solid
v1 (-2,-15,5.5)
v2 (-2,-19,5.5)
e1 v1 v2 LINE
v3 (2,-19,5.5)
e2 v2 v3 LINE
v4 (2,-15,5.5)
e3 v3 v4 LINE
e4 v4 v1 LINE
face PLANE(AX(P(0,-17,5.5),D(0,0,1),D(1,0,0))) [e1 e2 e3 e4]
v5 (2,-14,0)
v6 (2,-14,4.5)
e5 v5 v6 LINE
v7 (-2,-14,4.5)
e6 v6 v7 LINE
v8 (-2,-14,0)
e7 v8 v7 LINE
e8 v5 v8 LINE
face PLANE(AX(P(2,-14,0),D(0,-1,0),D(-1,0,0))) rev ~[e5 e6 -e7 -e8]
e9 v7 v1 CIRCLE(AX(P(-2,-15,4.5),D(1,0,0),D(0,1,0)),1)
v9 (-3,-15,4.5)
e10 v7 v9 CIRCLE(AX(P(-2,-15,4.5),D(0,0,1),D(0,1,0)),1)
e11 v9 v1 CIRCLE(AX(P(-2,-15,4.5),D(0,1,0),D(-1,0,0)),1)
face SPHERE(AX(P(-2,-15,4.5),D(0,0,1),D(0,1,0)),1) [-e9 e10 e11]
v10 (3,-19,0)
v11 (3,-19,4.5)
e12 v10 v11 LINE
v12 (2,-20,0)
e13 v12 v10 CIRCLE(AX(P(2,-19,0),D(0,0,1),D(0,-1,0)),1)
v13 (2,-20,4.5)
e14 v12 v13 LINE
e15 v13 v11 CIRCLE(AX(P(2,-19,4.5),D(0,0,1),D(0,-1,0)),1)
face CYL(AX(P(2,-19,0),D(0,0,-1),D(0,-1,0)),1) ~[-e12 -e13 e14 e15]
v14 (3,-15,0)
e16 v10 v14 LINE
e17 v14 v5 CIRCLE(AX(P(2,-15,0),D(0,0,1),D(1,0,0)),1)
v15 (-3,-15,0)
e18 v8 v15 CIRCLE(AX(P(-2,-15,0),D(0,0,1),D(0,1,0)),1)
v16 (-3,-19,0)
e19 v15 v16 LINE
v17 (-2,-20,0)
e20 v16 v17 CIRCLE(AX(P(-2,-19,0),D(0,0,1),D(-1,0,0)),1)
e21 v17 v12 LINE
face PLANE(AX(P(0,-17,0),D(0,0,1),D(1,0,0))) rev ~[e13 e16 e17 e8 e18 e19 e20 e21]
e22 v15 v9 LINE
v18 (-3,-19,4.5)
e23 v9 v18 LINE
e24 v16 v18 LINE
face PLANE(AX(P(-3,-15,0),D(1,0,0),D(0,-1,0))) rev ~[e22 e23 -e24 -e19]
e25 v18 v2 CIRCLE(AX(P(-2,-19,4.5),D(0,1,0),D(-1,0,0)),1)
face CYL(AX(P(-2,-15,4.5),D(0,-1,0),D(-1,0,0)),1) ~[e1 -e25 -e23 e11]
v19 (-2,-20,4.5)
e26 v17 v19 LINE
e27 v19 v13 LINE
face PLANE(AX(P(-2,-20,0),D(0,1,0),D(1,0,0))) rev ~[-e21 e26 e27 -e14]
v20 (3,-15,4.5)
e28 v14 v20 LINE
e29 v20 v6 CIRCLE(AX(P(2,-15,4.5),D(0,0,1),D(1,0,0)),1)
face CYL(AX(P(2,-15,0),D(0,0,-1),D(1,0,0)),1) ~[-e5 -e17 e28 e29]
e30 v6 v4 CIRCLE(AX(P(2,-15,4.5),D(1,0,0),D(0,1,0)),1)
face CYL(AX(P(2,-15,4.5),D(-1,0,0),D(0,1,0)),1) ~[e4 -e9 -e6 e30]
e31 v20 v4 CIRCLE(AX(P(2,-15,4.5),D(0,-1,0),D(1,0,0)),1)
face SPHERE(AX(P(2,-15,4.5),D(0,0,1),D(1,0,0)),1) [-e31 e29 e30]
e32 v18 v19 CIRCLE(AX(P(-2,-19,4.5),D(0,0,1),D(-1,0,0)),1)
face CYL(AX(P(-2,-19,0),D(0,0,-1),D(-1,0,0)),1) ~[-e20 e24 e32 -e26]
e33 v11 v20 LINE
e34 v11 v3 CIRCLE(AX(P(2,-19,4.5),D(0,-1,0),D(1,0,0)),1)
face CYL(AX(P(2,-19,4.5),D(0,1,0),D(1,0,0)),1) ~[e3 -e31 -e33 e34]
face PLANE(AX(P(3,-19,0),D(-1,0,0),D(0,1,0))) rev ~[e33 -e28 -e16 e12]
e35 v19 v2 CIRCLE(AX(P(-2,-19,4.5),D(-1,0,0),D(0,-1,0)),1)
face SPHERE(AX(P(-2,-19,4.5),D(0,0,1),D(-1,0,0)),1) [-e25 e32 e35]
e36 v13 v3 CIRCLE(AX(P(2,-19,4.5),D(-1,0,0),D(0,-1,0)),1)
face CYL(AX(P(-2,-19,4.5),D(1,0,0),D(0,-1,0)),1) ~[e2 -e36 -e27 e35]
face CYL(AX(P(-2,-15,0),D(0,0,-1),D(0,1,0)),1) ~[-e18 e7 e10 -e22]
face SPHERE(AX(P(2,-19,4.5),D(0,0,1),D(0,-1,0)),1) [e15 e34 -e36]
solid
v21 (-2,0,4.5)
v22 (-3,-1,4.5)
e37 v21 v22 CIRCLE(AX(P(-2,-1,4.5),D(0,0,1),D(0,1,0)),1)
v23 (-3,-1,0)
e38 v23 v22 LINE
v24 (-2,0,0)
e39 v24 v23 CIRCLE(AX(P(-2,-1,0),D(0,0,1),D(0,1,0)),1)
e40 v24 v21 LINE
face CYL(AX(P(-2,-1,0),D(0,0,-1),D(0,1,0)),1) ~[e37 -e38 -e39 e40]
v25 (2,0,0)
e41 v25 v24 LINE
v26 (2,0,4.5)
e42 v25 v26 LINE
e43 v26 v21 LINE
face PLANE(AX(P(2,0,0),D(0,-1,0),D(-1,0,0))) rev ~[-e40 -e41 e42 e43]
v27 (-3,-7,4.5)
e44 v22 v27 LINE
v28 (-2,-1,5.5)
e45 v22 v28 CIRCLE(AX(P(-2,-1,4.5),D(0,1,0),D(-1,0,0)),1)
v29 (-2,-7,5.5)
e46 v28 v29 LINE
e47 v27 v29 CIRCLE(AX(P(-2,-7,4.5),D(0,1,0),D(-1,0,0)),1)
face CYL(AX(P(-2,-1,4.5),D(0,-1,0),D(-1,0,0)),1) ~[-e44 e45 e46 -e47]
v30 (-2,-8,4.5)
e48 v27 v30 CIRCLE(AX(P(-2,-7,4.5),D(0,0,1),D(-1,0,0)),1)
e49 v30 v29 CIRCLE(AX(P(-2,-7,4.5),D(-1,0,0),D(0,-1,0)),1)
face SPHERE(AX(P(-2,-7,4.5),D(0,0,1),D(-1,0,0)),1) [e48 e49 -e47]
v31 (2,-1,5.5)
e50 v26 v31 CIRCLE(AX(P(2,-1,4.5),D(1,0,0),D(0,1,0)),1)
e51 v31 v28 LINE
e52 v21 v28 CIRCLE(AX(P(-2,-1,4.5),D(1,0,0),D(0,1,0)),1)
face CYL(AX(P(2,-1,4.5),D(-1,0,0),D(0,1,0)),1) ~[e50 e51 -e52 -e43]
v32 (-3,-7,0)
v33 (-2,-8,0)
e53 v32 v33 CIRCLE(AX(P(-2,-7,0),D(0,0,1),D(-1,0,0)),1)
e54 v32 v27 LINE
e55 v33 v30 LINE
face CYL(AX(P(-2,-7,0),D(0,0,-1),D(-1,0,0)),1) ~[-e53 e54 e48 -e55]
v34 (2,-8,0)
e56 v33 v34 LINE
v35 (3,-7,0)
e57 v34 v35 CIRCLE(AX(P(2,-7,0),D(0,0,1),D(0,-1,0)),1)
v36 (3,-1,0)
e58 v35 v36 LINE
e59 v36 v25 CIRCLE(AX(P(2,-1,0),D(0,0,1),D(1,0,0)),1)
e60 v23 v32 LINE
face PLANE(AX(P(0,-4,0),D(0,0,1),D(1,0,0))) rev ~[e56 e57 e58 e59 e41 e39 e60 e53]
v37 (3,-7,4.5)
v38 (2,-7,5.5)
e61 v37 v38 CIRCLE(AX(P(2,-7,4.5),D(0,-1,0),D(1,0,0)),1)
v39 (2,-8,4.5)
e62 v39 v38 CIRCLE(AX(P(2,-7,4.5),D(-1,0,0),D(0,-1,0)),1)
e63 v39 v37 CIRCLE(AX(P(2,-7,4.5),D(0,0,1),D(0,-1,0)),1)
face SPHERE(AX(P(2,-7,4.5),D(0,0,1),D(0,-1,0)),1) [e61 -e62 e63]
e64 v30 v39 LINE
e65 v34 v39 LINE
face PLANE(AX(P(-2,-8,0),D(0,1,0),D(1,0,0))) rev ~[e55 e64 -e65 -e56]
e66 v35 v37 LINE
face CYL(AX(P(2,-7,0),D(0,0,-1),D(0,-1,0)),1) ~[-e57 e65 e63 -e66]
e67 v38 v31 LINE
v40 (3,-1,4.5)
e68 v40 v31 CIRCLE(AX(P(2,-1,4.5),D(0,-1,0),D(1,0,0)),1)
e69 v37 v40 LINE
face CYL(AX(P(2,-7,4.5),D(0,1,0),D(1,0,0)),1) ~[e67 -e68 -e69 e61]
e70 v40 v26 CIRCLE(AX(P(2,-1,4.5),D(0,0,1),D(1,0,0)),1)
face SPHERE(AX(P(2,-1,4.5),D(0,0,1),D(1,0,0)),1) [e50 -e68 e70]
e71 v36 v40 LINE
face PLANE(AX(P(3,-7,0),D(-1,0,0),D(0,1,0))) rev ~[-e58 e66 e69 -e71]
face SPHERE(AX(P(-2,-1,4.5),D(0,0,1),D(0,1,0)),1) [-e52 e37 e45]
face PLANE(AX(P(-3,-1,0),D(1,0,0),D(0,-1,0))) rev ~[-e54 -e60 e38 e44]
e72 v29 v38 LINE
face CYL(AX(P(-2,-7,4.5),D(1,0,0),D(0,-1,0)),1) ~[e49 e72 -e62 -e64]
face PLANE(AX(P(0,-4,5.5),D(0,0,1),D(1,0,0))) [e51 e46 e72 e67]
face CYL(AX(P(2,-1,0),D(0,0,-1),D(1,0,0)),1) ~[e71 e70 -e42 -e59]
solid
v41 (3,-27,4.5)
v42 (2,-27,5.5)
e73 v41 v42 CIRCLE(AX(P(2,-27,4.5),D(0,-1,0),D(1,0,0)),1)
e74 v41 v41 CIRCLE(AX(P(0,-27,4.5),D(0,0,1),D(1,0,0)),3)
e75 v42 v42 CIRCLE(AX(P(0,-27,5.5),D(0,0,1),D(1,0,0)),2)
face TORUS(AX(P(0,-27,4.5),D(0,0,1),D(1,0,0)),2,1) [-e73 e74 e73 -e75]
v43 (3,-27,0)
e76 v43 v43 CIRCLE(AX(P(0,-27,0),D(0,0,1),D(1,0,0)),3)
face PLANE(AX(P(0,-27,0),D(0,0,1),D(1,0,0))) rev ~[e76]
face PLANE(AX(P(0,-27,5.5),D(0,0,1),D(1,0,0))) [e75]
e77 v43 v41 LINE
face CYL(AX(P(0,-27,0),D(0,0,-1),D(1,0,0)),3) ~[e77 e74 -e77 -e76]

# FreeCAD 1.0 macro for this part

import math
import FreeCAD as App
import Part
import Sketcher

V = App.Vector
Q = App.Units.Quantity


def edges_at(feature, points):
    """Names of the edges that pass closest to the given points."""
    edges = feature.Shape.Edges
    near = lambda p: min(range(len(edges)), key=lambda i: edges[i].distToShape(Part.Vertex(*p))[0])
    return sorted({f"Edge{near(p) + 1}" for p in points})

doc = App.newDocument("Part")
body = doc.addObject("PartDesign::Body", "Body")

sketch1 = body.newObject("Sketcher::SketchObject", "Sketch")
sketch1.AttachmentSupport = (doc.getObject("XY_Plane"), [""])
sketch1.MapMode = "FlatFace"
sketch1.addGeometry(Part.LineSegment(V(2, 0, 0), V(-2, 0, 0)), False)
sketch1.addGeometry(Part.ArcOfCircle(Part.Circle(V(-2, -1, 0), V(0, 0, 1), 1), math.radians(90), math.radians(180)), False)
sketch1.addGeometry(Part.LineSegment(V(-3, -1, 0), V(-3, -7, 0)), False)
sketch1.addGeometry(Part.ArcOfCircle(Part.Circle(V(-2, -7, 0), V(0, 0, 1), 1), math.radians(180), math.radians(270)), False)
sketch1.addGeometry(Part.LineSegment(V(-2, -8, 0), V(2, -8, 0)), False)
sketch1.addGeometry(Part.ArcOfCircle(Part.Circle(V(2, -7, 0), V(0, 0, 1), 1), math.radians(-90), math.radians(0)), False)
sketch1.addGeometry(Part.LineSegment(V(3, -7, 0), V(3, -1, 0)), False)
sketch1.addGeometry(Part.ArcOfCircle(Part.Circle(V(2, -1, 0), V(0, 0, 1), 1), math.radians(0), math.radians(90)), False)
sketch1.addConstraint(Sketcher.Constraint("Tangent", 0, 2, 1, 1))
sketch1.addConstraint(Sketcher.Constraint("Tangent", 1, 2, 2, 1))
sketch1.addConstraint(Sketcher.Constraint("Tangent", 2, 2, 3, 1))
sketch1.addConstraint(Sketcher.Constraint("Tangent", 3, 2, 4, 1))
sketch1.addConstraint(Sketcher.Constraint("Tangent", 4, 2, 5, 1))
sketch1.addConstraint(Sketcher.Constraint("Tangent", 5, 2, 6, 1))
sketch1.addConstraint(Sketcher.Constraint("Tangent", 6, 2, 7, 1))
sketch1.addConstraint(Sketcher.Constraint("Tangent", 7, 2, 0, 1))
sketch1.addConstraint(Sketcher.Constraint("Horizontal", 0))
sketch1.addConstraint(Sketcher.Constraint("Vertical", 2))
sketch1.addConstraint(Sketcher.Constraint("Horizontal", 4))
sketch1.addConstraint(Sketcher.Constraint("Vertical", 6))
sketch1.addConstraint(Sketcher.Constraint("Equal", 1, 3))
sketch1.addConstraint(Sketcher.Constraint("Equal", 3, 5))
sketch1.addConstraint(Sketcher.Constraint("Equal", 5, 7))
sketch1.addConstraint(Sketcher.Constraint("Symmetric", 0, 2, 7, 2, -1, 1))
sketch1.addConstraint(Sketcher.Constraint("Radius", 1, Q("1 mm")))
sketch1.addConstraint(Sketcher.Constraint("DistanceX", 0, 2, 0, 1, Q("4 mm")))
sketch1.addConstraint(Sketcher.Constraint("DistanceY", 2, 2, 2, 1, Q("6 mm")))
pad1 = body.newObject("PartDesign::Pad", "Pad")
pad1.Profile = sketch1
pad1.Length = 5.5
doc.recompute()

fillet = body.newObject("PartDesign::Fillet", "Fillet")
fillet.Base = (pad1, edges_at(pad1, [
    (0, 0, 5.5),
    (-2.707, -0.293, 5.5),
    (-3, -4, 5.5),
    (-2.707, -7.707, 5.5),
    (0, -8, 5.5),
    (2.707, -7.707, 5.5),
    (3, -4, 5.5),
    (2.707, -0.293, 5.5),
]))
fillet.Radius = 1
body2 = doc.addObject("PartDesign::Body", "Body001")

sketch2 = body2.newObject("Sketcher::SketchObject", "Sketch001")
sketch2.AttachmentSupport = (doc.getObject("XY_Plane001"), [""])
sketch2.MapMode = "FlatFace"
sketch2.addGeometry(Part.LineSegment(V(2, -14, 0), V(-2, -14, 0)), False)
sketch2.addGeometry(Part.ArcOfCircle(Part.Circle(V(-2, -15, 0), V(0, 0, 1), 1), math.radians(90), math.radians(180)), False)
sketch2.addGeometry(Part.LineSegment(V(-3, -15, 0), V(-3, -19, 0)), False)
sketch2.addGeometry(Part.ArcOfCircle(Part.Circle(V(-2, -19, 0), V(0, 0, 1), 1), math.radians(180), math.radians(270)), False)
sketch2.addGeometry(Part.LineSegment(V(-2, -20, 0), V(2, -20, 0)), False)
sketch2.addGeometry(Part.ArcOfCircle(Part.Circle(V(2, -19, 0), V(0, 0, 1), 1), math.radians(-90), math.radians(0)), False)
sketch2.addGeometry(Part.LineSegment(V(3, -19, 0), V(3, -15, 0)), False)
sketch2.addGeometry(Part.ArcOfCircle(Part.Circle(V(2, -15, 0), V(0, 0, 1), 1), math.radians(0), math.radians(90)), False)
sketch2.addConstraint(Sketcher.Constraint("Tangent", 0, 2, 1, 1))
sketch2.addConstraint(Sketcher.Constraint("Tangent", 1, 2, 2, 1))
sketch2.addConstraint(Sketcher.Constraint("Tangent", 2, 2, 3, 1))
sketch2.addConstraint(Sketcher.Constraint("Tangent", 3, 2, 4, 1))
sketch2.addConstraint(Sketcher.Constraint("Tangent", 4, 2, 5, 1))
sketch2.addConstraint(Sketcher.Constraint("Tangent", 5, 2, 6, 1))
sketch2.addConstraint(Sketcher.Constraint("Tangent", 6, 2, 7, 1))
sketch2.addConstraint(Sketcher.Constraint("Tangent", 7, 2, 0, 1))
sketch2.addConstraint(Sketcher.Constraint("Horizontal", 0))
sketch2.addConstraint(Sketcher.Constraint("Vertical", 2))
sketch2.addConstraint(Sketcher.Constraint("Horizontal", 4))
sketch2.addConstraint(Sketcher.Constraint("Vertical", 6))
sketch2.addConstraint(Sketcher.Constraint("Equal", 1, 3))
sketch2.addConstraint(Sketcher.Constraint("Equal", 3, 5))
sketch2.addConstraint(Sketcher.Constraint("Equal", 5, 7))
sketch2.addConstraint(Sketcher.Constraint("Equal", 4, 2))
sketch2.addConstraint(Sketcher.Constraint("Radius", 1, Q("1 mm")))
sketch2.addConstraint(Sketcher.Constraint("DistanceX", 0, 2, 0, 1, Q("4 mm")))
sketch2.addConstraint(Sketcher.Constraint("DistanceX", 1, 3, -1, 1, Q("2 mm")))
sketch2.addConstraint(Sketcher.Constraint("DistanceY", 1, 3, -1, 1, Q("15 mm")))
pad2 = body2.newObject("PartDesign::Pad", "Pad001")
pad2.Profile = sketch2
pad2.Length = 5.5
doc.recompute()

fillet2 = body2.newObject("PartDesign::Fillet", "Fillet001")
fillet2.Base = (pad2, edges_at(pad2, [
    (3, -17, 5.5),
    (2.707, -14.293, 5.5),
    (0, -14, 5.5),
    (-2.707, -14.293, 5.5),
    (-3, -17, 5.5),
    (-2.707, -19.707, 5.5),
    (0, -20, 5.5),
    (2.707, -19.707, 5.5),
]))
fillet2.Radius = 1
body3 = doc.addObject("PartDesign::Body", "Body002")

sketch3 = body3.newObject("Sketcher::SketchObject", "Sketch002")
sketch3.AttachmentSupport = (doc.getObject("XY_Plane002"), [""])
sketch3.MapMode = "FlatFace"
sketch3.addGeometry(Part.Circle(V(0, -27, 0), V(0, 0, 1), 3), False)
sketch3.addConstraint(Sketcher.Constraint("PointOnObject", 0, 3, -2))
sketch3.addConstraint(Sketcher.Constraint("Diameter", 0, Q("6 mm")))
sketch3.addConstraint(Sketcher.Constraint("DistanceY", 0, 3, -1, 1, Q("27 mm")))
pad3 = body3.newObject("PartDesign::Pad", "Pad002")
pad3.Profile = sketch3
pad3.Length = 5.5
doc.recompute()

fillet3 = body3.newObject("PartDesign::Fillet", "Fillet002")
fillet3.Base = (pad3, edges_at(pad3, [(-3, -27, 5.5)]))
fillet3.Radius = 1

doc.recompute()
